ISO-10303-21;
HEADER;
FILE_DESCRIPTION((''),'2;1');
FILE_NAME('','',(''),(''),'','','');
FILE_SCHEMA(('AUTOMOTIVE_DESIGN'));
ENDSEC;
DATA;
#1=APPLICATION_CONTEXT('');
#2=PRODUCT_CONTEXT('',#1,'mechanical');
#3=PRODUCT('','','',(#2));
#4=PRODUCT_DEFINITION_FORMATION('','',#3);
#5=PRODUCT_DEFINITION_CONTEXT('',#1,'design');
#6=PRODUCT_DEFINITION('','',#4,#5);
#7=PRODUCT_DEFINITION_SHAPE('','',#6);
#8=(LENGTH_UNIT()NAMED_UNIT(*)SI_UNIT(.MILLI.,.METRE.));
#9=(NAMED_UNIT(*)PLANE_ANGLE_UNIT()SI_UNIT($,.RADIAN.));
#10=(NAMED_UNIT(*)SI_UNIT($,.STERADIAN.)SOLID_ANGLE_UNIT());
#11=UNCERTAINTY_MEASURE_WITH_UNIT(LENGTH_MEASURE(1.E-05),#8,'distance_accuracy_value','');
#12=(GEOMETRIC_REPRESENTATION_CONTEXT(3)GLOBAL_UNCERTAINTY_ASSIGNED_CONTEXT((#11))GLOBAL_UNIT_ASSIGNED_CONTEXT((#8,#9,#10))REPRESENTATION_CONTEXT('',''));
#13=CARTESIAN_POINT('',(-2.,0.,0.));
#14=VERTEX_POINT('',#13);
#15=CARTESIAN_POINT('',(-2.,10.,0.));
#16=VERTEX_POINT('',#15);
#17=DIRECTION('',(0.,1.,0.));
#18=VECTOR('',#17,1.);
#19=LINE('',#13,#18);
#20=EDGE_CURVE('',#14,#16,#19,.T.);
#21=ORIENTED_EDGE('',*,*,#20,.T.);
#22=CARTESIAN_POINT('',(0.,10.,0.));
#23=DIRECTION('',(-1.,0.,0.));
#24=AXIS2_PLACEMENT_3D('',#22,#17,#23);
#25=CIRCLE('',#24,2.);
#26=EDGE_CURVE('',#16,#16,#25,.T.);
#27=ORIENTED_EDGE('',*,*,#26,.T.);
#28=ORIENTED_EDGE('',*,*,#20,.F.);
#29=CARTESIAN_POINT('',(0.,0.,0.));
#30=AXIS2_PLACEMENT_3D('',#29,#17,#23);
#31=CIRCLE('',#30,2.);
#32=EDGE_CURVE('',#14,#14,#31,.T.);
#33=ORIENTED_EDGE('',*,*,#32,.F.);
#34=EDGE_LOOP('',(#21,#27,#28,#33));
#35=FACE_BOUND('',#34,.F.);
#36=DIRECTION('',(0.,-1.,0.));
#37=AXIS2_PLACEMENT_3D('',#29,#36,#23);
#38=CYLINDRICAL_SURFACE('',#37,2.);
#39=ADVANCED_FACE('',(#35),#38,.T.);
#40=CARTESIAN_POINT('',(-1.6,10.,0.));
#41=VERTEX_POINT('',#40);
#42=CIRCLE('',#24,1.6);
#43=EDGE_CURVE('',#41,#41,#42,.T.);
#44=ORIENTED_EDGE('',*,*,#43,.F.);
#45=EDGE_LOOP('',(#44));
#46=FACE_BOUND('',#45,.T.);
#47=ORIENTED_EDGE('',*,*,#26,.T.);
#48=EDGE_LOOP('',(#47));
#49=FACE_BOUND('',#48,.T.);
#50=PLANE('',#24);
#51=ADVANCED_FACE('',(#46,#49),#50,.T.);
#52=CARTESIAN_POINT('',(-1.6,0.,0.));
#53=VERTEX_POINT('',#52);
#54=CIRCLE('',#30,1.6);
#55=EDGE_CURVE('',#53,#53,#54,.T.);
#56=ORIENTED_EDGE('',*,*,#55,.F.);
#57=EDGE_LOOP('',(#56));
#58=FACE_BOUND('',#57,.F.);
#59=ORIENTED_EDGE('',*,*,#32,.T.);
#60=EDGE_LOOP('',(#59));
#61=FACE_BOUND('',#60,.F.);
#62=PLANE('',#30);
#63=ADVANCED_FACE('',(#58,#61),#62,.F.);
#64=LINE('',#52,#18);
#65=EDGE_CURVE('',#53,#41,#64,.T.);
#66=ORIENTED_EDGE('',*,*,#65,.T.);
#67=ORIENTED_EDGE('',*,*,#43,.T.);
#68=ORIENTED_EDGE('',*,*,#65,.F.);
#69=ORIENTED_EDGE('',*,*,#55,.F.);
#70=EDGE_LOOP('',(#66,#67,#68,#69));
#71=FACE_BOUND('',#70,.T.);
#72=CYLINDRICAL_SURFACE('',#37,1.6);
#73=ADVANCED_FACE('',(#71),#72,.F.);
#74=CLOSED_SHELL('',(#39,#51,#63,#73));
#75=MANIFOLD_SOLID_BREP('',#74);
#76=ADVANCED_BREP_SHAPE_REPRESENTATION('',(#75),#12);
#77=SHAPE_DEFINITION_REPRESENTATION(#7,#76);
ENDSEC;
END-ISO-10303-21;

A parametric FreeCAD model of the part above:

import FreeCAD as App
import Part
import Sketcher
from FreeCAD import Vector

doc = App.newDocument("Part")
params = doc.addObject("Spreadsheet::Sheet", "Params")
for row, (alias, value) in enumerate([
    ("sketch1_diameter", "4 mm"),
    ("sketch1_diameter2", "3.2 mm"),
    ("pad1_length", "10 mm"),
], start=1):
    params.set(f"A{row}", alias)
    params.set(f"B{row}", "=" + value)
    params.setAlias(f"B{row}", alias)

body = doc.addObject("PartDesign::Body", "Body")

sketch1 = doc.addObject("Sketcher::SketchObject", "Sketch")
body.addObject(sketch1)
sketch1.AttachmentSupport = (doc.XZ_Plane, [""])
sketch1.MapMode = "FlatFace"
sketch1.addGeometry([
    Part.Circle(Vector(0, 0, 0), Vector(0, 0, 1), 2),
    Part.Circle(Vector(0, 0, 0), Vector(0, 0, 1), 1.6),
], False)
sketch1.addConstraint([
    Sketcher.Constraint("Coincident", 0, 3, -1, 1),
    Sketcher.Constraint("Coincident", 1, 3, -1, 1),
    Sketcher.Constraint("Diameter", 0, 4.0),
    Sketcher.Constraint("Diameter", 1, 3.2),
])
sketch1.setExpression("Constraints[2]", "Params.sketch1_diameter")
sketch1.setExpression("Constraints[3]", "Params.sketch1_diameter2")
pad1 = doc.addObject("PartDesign::Pad", "Pad")
body.addObject(pad1)
pad1.Profile = sketch1
pad1.setExpression("Length", "Params.pad1_length")
pad1.Reversed = True

doc.recompute()
